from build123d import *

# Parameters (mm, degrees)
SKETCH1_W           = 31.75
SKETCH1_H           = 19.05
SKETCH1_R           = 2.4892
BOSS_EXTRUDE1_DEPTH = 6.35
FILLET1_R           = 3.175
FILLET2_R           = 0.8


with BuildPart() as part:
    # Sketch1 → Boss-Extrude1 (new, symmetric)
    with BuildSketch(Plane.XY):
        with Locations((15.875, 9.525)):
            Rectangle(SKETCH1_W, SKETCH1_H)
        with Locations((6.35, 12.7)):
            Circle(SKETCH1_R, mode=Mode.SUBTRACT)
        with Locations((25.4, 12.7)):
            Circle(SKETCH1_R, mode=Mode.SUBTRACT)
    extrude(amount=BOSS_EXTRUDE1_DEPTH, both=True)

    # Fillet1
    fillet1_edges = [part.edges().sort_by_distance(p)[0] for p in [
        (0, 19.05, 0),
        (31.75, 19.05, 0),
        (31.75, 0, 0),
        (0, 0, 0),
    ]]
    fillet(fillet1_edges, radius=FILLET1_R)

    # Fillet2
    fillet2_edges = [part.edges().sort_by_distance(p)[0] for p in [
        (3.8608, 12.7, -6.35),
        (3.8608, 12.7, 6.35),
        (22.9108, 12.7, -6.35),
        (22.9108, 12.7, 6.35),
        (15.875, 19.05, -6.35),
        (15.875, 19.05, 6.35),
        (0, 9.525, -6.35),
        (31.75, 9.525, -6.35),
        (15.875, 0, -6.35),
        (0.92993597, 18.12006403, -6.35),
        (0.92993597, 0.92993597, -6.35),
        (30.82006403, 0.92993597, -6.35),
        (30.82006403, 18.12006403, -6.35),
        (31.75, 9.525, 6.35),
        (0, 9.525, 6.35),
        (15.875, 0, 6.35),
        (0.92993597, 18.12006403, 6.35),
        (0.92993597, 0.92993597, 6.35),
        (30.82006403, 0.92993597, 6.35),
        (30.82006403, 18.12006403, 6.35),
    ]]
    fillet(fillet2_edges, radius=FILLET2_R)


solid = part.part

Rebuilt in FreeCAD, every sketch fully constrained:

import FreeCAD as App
import Part
import Sketcher

V = App.Vector
Q = App.Units.Quantity


def edges_at(feature, points):
    """Names of the edges that pass closest to the given points."""
    edges = feature.Shape.Edges
    near = lambda p: min(range(len(edges)), key=lambda i: edges[i].distToShape(Part.Vertex(*p))[0])
    return sorted({f"Edge{near(p) + 1}" for p in points})

doc = App.newDocument("Part")
params = doc.addObject("Spreadsheet::Sheet", "Params")
for row, (alias, value) in enumerate([
    ("sketch1_diameter", "0.196 in"),
    ("sketch1_width", "1.25 in"),
    ("sketch1_height", "0.75 in"),
    ("pad1_length", "0.5 in"),
    ("fillet_radius", "0.125 in"),
    ("fillet2_radius", "0.8 mm"),
], start=1):
    params.set(f"A{row}", alias)
    params.set(f"B{row}", "=" + value)
    params.setAlias(f"B{row}", alias)

body = doc.addObject("PartDesign::Body", "Body")

# Sketch on XY plane
sketch1 = doc.addObject("Sketcher::SketchObject", "Sketch")
body.addObject(sketch1)
sketch1.AttachmentSupport = (doc.XY_Plane, [""])
sketch1.MapMode = "FlatFace"
sketch1.addGeometry([
    Part.LineSegment(V(0, 19.05, 0), V(0, 0, 0)),  # 0
    Part.LineSegment(V(0, 0, 0), V(31.75, 0, 0)),  # 1
    Part.LineSegment(V(31.75, 0, 0), V(31.75, 19.05, 0)),  # 2
    Part.LineSegment(V(31.75, 19.05, 0), V(0, 19.05, 0)),  # 3
    Part.Circle(V(6.35, 12.7, 0), V(0, 0, 1), 2.4892),  # 4
    Part.Circle(V(25.4, 12.7, 0), V(0, 0, 1), 2.4892),  # 5
], False)
sketch1.addConstraint([
    Sketcher.Constraint("Coincident", 0, 2, 1, 1),
    Sketcher.Constraint("Coincident", 1, 2, 2, 1),
    Sketcher.Constraint("Coincident", 2, 2, 3, 1),
    Sketcher.Constraint("Coincident", 3, 2, 0, 1),
    Sketcher.Constraint("Vertical", 0),
    Sketcher.Constraint("Horizontal", 1),
    Sketcher.Constraint("Vertical", 2),
    Sketcher.Constraint("Horizontal", 3),
    Sketcher.Constraint("Coincident", 0, 2, -1, 1),
    Sketcher.Constraint("Equal", 4, 5),
    Sketcher.Constraint("Horizontal", 4, 3, 5, 3),
    Sketcher.Constraint("Diameter", 4, Q("0.196 in")),
    Sketcher.Constraint("DistanceX", -1, 1, 5, 3, Q("1 in")),
    Sketcher.Constraint("DistanceX", 4, 3, 1, 2, Q("1 in")),
    Sketcher.Constraint("DistanceX", 1, 1, 1, 2, Q("1.25 in")),
    Sketcher.Constraint("DistanceY", 0, 2, 0, 1, Q("0.75 in")),
    Sketcher.Constraint("DistanceY", -1, 1, 4, 3, Q("0.5 in")),
])
sketch1.setExpression("Constraints[11]", "Params.sketch1_diameter")
sketch1.setExpression("Constraints[14]", "Params.sketch1_width")
sketch1.setExpression("Constraints[15]", "Params.sketch1_height")
pad1 = doc.addObject("PartDesign::Pad", "Pad")
body.addObject(pad1)
pad1.Profile = sketch1
pad1.setExpression("Length", "Params.pad1_length")
pad1.Midplane = True
doc.recompute()

fillet = doc.addObject("PartDesign::Fillet", "Fillet")
body.addObject(fillet)
fillet.Base = (pad1, edges_at(pad1, [
    (0, 19.05, 0),
    (31.75, 19.05, 0),
    (31.75, 0, 0),
    (0, 0, 0),
]))
fillet.setExpression("Radius", "Params.fillet_radius")
doc.recompute()

fillet2 = doc.addObject("PartDesign::Fillet", "Fillet001")
body.addObject(fillet2)
fillet2.Base = (fillet, edges_at(fillet, [
    (3.861, 12.7, -6.35),
    (3.861, 12.7, 6.35),
    (22.911, 12.7, -6.35),
    (22.911, 12.7, 6.35),
    (15.875, 19.05, -6.35),
    (15.875, 19.05, 6.35),
    (0, 9.525, -6.35),
    (31.75, 9.525, -6.35),
    (15.875, 0, -6.35),
    (0.93, 18.12, -6.35),
    (0.93, 0.93, -6.35),
    (30.82, 0.93, -6.35),
    (30.82, 18.12, -6.35),
    (31.75, 9.525, 6.35),
    (0, 9.525, 6.35),
    (15.875, 0, 6.35),
    (0.93, 18.12, 6.35),
    (0.93, 0.93, 6.35),
    (30.82, 0.93, 6.35),
    (30.82, 18.12, 6.35),
]))
fillet2.setExpression("Radius", "Params.fillet2_radius")

doc.recompute()
